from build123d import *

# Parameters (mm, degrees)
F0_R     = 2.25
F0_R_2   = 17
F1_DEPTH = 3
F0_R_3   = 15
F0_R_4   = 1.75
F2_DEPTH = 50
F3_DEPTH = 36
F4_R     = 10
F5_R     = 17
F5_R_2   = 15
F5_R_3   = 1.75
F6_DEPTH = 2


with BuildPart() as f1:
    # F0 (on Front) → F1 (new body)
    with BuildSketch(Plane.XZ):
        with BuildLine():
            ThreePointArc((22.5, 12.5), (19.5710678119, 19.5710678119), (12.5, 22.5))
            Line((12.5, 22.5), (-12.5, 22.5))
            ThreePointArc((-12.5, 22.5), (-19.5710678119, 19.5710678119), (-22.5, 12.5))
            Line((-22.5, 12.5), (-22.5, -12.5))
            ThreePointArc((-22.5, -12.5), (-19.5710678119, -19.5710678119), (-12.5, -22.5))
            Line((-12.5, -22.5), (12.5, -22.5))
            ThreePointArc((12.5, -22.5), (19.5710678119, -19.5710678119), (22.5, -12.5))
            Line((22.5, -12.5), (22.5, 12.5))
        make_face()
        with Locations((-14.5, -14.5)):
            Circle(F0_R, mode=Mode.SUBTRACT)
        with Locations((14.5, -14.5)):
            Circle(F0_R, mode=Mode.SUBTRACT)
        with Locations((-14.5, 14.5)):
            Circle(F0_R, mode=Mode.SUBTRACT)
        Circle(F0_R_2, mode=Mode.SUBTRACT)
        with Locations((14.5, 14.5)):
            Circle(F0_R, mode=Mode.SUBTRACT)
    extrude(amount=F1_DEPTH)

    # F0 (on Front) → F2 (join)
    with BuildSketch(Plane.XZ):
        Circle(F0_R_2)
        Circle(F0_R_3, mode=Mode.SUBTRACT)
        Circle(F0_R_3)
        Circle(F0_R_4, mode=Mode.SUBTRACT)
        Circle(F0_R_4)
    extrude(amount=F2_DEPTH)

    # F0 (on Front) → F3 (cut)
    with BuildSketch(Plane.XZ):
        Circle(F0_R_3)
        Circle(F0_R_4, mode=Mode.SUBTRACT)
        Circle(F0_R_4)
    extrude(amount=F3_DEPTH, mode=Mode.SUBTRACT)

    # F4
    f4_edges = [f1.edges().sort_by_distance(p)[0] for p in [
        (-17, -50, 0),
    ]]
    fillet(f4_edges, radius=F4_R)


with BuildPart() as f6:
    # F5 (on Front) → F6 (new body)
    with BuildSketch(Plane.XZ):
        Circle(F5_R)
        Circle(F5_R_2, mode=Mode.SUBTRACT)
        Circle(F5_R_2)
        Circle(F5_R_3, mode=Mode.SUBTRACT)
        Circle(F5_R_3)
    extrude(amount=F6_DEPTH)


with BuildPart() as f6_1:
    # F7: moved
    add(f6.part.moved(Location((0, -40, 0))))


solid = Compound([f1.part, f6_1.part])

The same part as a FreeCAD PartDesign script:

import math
import FreeCAD as App
import Part
import Sketcher

V = App.Vector


def edges_at(feature, points):
    """Names of the edges that pass closest to the given points."""
    edges = feature.Shape.Edges
    near = lambda p: min(range(len(edges)), key=lambda i: edges[i].distToShape(Part.Vertex(*p))[0])
    return sorted({f"Edge{near(p) + 1}" for p in points})

doc = App.newDocument("Part")
body = doc.addObject("PartDesign::Body", "Body")

sketch1 = body.newObject("Sketcher::SketchObject", "Sketch")
sketch1.AttachmentSupport = (doc.getObject("XZ_Plane"), [""])
sketch1.MapMode = "FlatFace"
sketch1.addGeometry(Part.ArcOfCircle(Part.Circle(V(12.5, 12.5, 0), V(0, 0, 1), 10), math.radians(0), math.radians(90)), False)
sketch1.addGeometry(Part.LineSegment(V(12.5, 22.5, 0), V(-12.5, 22.5, 0)), False)
sketch1.addGeometry(Part.ArcOfCircle(Part.Circle(V(-12.5, 12.5, 0), V(0, 0, 1), 10), math.radians(90), math.radians(180)), False)
sketch1.addGeometry(Part.LineSegment(V(-22.5, 12.5, 0), V(-22.5, -12.5, 0)), False)
sketch1.addGeometry(Part.ArcOfCircle(Part.Circle(V(-12.5, -12.5, 0), V(0, 0, 1), 10), math.radians(180), math.radians(270)), False)
sketch1.addGeometry(Part.LineSegment(V(-12.5, -22.5, 0), V(12.5, -22.5, 0)), False)
sketch1.addGeometry(Part.ArcOfCircle(Part.Circle(V(12.5, -12.5, 0), V(0, 0, 1), 10), math.radians(-90), math.radians(0)), False)
sketch1.addGeometry(Part.LineSegment(V(22.5, -12.5, 0), V(22.5, 12.5, 0)), False)
sketch1.addGeometry(Part.Circle(V(-14.5, -14.5, 0), V(0, 0, 1), 2.2), False)
sketch1.addGeometry(Part.Circle(V(14.5, -14.5, 0), V(0, 0, 1), 2.2), False)
sketch1.addGeometry(Part.Circle(V(-14.5, 14.5, 0), V(0, 0, 1), 2.2), False)
sketch1.addGeometry(Part.Circle(V(0, 0, 0), V(0, 0, 1), 17), False)
sketch1.addGeometry(Part.Circle(V(14.5, 14.5, 0), V(0, 0, 1), 2.2), False)
sketch1.addConstraint(Sketcher.Constraint("Tangent", 0, 2, 1, 1))
sketch1.addConstraint(Sketcher.Constraint("Tangent", 1, 2, 2, 1))
sketch1.addConstraint(Sketcher.Constraint("Tangent", 2, 2, 3, 1))
sketch1.addConstraint(Sketcher.Constraint("Tangent", 3, 2, 4, 1))
sketch1.addConstraint(Sketcher.Constraint("Tangent", 4, 2, 5, 1))
sketch1.addConstraint(Sketcher.Constraint("Tangent", 5, 2, 6, 1))
sketch1.addConstraint(Sketcher.Constraint("Tangent", 6, 2, 7, 1))
sketch1.addConstraint(Sketcher.Constraint("Tangent", 7, 2, 0, 1))
sketch1.addConstraint(Sketcher.Constraint("Horizontal", 1))
sketch1.addConstraint(Sketcher.Constraint("Vertical", 3))
sketch1.addConstraint(Sketcher.Constraint("Horizontal", 5))
sketch1.addConstraint(Sketcher.Constraint("Vertical", 7))
sketch1.addConstraint(Sketcher.Constraint("Coincident", 11, 3, -1, 1))
sketch1.addConstraint(Sketcher.Constraint("Equal", 0, 2))
sketch1.addConstraint(Sketcher.Constraint("Equal", 2, 4))
sketch1.addConstraint(Sketcher.Constraint("Equal", 4, 6))
sketch1.addConstraint(Sketcher.Constraint("Equal", 8, 9))
sketch1.addConstraint(Sketcher.Constraint("Equal", 9, 10))
sketch1.addConstraint(Sketcher.Constraint("Equal", 10, 12))
sketch1.addConstraint(Sketcher.Constraint("Symmetric", 0, 3, 4, 3, -1, 1))
sketch1.addConstraint(Sketcher.Constraint("Symmetric", 9, 3, 10, 3, -1, 1))
sketch1.addConstraint(Sketcher.Constraint("Symmetric", 8, 3, 12, 3, -1, 1))
sketch1.addConstraint(Sketcher.Constraint("Symmetric", 8, 3, 9, 3, -2))
sketch1.addConstraint(Sketcher.Constraint("Equal", 5, 3))
sketch1.addConstraint(Sketcher.Constraint("Diameter", 11, 34.0))
sketch1.addConstraint(Sketcher.Constraint("Radius", 0, 10.0))
sketch1.addConstraint(Sketcher.Constraint("Diameter", 8, 4.5))
sketch1.addConstraint(Sketcher.Constraint("DistanceX", 1, 2, 1, 1, 25.0))
sketch1.addConstraint(Sketcher.Constraint("DistanceX", 8, 3, 4, 3, 2.0))
sketch1.addConstraint(Sketcher.Constraint("DistanceY", 8, 3, 4, 3, 2.0))
pad1 = body.newObject("PartDesign::Pad", "Pad")
pad1.Profile = sketch1
pad1.Length = 3

sketch2 = body.newObject("Sketcher::SketchObject", "Sketch001")
sketch2.AttachmentSupport = (doc.getObject("XZ_Plane"), [""])
sketch2.MapMode = "FlatFace"
sketch2.addGeometry(Part.Circle(V(0, 0, 0), V(0, 0, 1), 17), False)
sketch2.addConstraint(Sketcher.Constraint("Coincident", 0, 3, -1, 1))
sketch2.addConstraint(Sketcher.Constraint("Diameter", 0, 34.0))
pad2 = body.newObject("PartDesign::Pad", "Pad001")
pad2.Profile = sketch2
pad2.Length = 50

sketch3 = body.newObject("Sketcher::SketchObject", "Sketch002")
sketch3.AttachmentSupport = (doc.getObject("XZ_Plane"), [""])
sketch3.MapMode = "FlatFace"
sketch3.addGeometry(Part.Circle(V(0, 0, 0), V(0, 0, 1), 15), False)
sketch3.addConstraint(Sketcher.Constraint("Coincident", 0, 3, -1, 1))
sketch3.addConstraint(Sketcher.Constraint("Diameter", 0, 30.0))
pocket1 = body.newObject("PartDesign::Pocket", "Pocket")
pocket1.Profile = sketch3
pocket1.Length = 36
pocket1.Reversed = True
doc.recompute()

fillet = body.newObject("PartDesign::Fillet", "Fillet")
fillet.Base = (pocket1, edges_at(pocket1, [(-17, -50, 0)]))
fillet.Radius = 10
body2 = doc.addObject("PartDesign::Body", "Body001")

sketch4 = body2.newObject("Sketcher::SketchObject", "Sketch003")
sketch4.AttachmentSupport = (doc.getObject("XZ_Plane001"), [""])
sketch4.MapMode = "FlatFace"
sketch4.addGeometry(Part.Circle(V(0, 0, 0), V(0, 0, 1), 17), False)
sketch4.addConstraint(Sketcher.Constraint("Coincident", 0, 3, -1, 1))
sketch4.addConstraint(Sketcher.Constraint("Diameter", 0, 34.0))
pad3 = body2.newObject("PartDesign::Pad", "Pad002")
pad3.Profile = sketch4
pad3.Length = 2
body3 = doc.addObject("PartDesign::Body", "Body002")
doc.recompute()

body2.Placement = App.Placement(V(0, -40, 0), App.Rotation(V(0, 0, 1), 0))
boolean = body3.newObject("PartDesign::Boolean", "Boolean")
boolean.Type = "Fuse"
boolean.addObjects([body2])

doc.recompute()
